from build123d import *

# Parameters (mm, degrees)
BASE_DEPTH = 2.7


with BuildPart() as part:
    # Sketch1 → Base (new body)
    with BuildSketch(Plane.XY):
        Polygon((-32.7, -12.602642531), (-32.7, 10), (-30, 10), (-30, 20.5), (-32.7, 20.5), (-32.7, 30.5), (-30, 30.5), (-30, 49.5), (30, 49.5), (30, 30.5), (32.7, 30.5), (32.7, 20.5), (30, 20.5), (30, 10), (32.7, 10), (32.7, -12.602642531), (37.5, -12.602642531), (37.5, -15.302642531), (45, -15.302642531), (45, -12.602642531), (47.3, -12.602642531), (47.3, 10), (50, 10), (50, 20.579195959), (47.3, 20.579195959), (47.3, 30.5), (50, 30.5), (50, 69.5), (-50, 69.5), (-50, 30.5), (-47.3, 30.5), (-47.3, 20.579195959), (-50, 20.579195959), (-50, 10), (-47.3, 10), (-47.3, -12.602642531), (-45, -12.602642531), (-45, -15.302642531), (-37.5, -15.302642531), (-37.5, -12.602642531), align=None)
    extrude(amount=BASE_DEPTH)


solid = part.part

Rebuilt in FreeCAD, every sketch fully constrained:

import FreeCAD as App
import Part
import Sketcher
from FreeCAD import Vector

doc = App.newDocument("Part")
params = doc.addObject("Spreadsheet::Sheet", "Params")
for row, (alias, value) in enumerate([
    ("sketch1_width", "60 mm"),
    ("sketch1_width2", "100 mm"),
    ("sketch1_height", "10 mm"),
    ("sketch1_height2", "19 mm"),
    ("sketch1_height3", "39 mm"),
    ("pad1_length", "2.7 mm"),
], start=1):
    params.set(f"A{row}", alias)
    params.set(f"B{row}", "=" + value)
    params.setAlias(f"B{row}", alias)

body = doc.addObject("PartDesign::Body", "Body")

sketch1 = body.newObject("Sketcher::SketchObject", "Sketch")
sketch1.AttachmentSupport = (doc.getObject("XY_Plane"), [""])
sketch1.MapMode = "FlatFace"
sketch1.addGeometry([
    Part.LineSegment(Vector(-32.7, -12.6, 0), Vector(-32.7, 10, 0)),
    Part.LineSegment(Vector(-32.7, 10, 0), Vector(-30, 10, 0)),
    Part.LineSegment(Vector(-30, 10, 0), Vector(-30, 20.5, 0)),
    Part.LineSegment(Vector(-30, 20.5, 0), Vector(-32.7, 20.5, 0)),
    Part.LineSegment(Vector(-32.7, 20.5, 0), Vector(-32.7, 30.5, 0)),
    Part.LineSegment(Vector(-32.7, 30.5, 0), Vector(-30, 30.5, 0)),
    Part.LineSegment(Vector(-30, 30.5, 0), Vector(-30, 49.5, 0)),
    Part.LineSegment(Vector(-30, 49.5, 0), Vector(30, 49.5, 0)),
    Part.LineSegment(Vector(30, 49.5, 0), Vector(30, 30.5, 0)),
    Part.LineSegment(Vector(30, 30.5, 0), Vector(32.7, 30.5, 0)),
    Part.LineSegment(Vector(32.7, 30.5, 0), Vector(32.7, 20.5, 0)),
    Part.LineSegment(Vector(32.7, 20.5, 0), Vector(30, 20.5, 0)),
    Part.LineSegment(Vector(30, 20.5, 0), Vector(30, 10, 0)),
    Part.LineSegment(Vector(30, 10, 0), Vector(32.7, 10, 0)),
    Part.LineSegment(Vector(32.7, 10, 0), Vector(32.7, -12.6, 0)),
    Part.LineSegment(Vector(32.7, -12.6, 0), Vector(37.5, -12.6, 0)),
    Part.LineSegment(Vector(37.5, -12.6, 0), Vector(37.5, -15.3, 0)),
    Part.LineSegment(Vector(37.5, -15.3, 0), Vector(45, -15.3, 0)),
    Part.LineSegment(Vector(45, -15.3, 0), Vector(45, -12.6, 0)),
    Part.LineSegment(Vector(45, -12.6, 0), Vector(47.3, -12.6, 0)),
    Part.LineSegment(Vector(47.3, -12.6, 0), Vector(47.3, 10, 0)),
    Part.LineSegment(Vector(47.3, 10, 0), Vector(50, 10, 0)),
    Part.LineSegment(Vector(50, 10, 0), Vector(50, 20.6, 0)),
    Part.LineSegment(Vector(50, 20.6, 0), Vector(47.3, 20.6, 0)),
    Part.LineSegment(Vector(47.3, 20.6, 0), Vector(47.3, 30.5, 0)),
    Part.LineSegment(Vector(47.3, 30.5, 0), Vector(50, 30.5, 0)),
    Part.LineSegment(Vector(50, 30.5, 0), Vector(50, 69.5, 0)),
    Part.LineSegment(Vector(50, 69.5, 0), Vector(-50, 69.5, 0)),
    Part.LineSegment(Vector(-50, 69.5, 0), Vector(-50, 30.5, 0)),
    Part.LineSegment(Vector(-50, 30.5, 0), Vector(-47.3, 30.5, 0)),
    Part.LineSegment(Vector(-47.3, 30.5, 0), Vector(-47.3, 20.6, 0)),
    Part.LineSegment(Vector(-47.3, 20.6, 0), Vector(-50, 20.6, 0)),
    Part.LineSegment(Vector(-50, 20.6, 0), Vector(-50, 10, 0)),
    Part.LineSegment(Vector(-50, 10, 0), Vector(-47.3, 10, 0)),
    Part.LineSegment(Vector(-47.3, 10, 0), Vector(-47.3, -12.6, 0)),
    Part.LineSegment(Vector(-47.3, -12.6, 0), Vector(-45, -12.6, 0)),
    Part.LineSegment(Vector(-45, -12.6, 0), Vector(-45, -15.3, 0)),
    Part.LineSegment(Vector(-45, -15.3, 0), Vector(-37.5, -15.3, 0)),
    Part.LineSegment(Vector(-37.5, -15.3, 0), Vector(-37.5, -12.6, 0)),
    Part.LineSegment(Vector(-37.5, -12.6, 0), Vector(-32.7, -12.6, 0)),
], False)
sketch1.addConstraint([
    Sketcher.Constraint("Coincident", 0, 2, 1, 1),
    Sketcher.Constraint("Coincident", 1, 2, 2, 1),
    Sketcher.Constraint("Coincident", 2, 2, 3, 1),
    Sketcher.Constraint("Coincident", 3, 2, 4, 1),
    Sketcher.Constraint("Coincident", 4, 2, 5, 1),
    Sketcher.Constraint("Coincident", 5, 2, 6, 1),
    Sketcher.Constraint("Coincident", 6, 2, 7, 1),
    Sketcher.Constraint("Coincident", 7, 2, 8, 1),
    Sketcher.Constraint("Coincident", 8, 2, 9, 1),
    Sketcher.Constraint("Coincident", 9, 2, 10, 1),
    Sketcher.Constraint("Coincident", 10, 2, 11, 1),
    Sketcher.Constraint("Coincident", 11, 2, 12, 1),
    Sketcher.Constraint("Coincident", 12, 2, 13, 1),
    Sketcher.Constraint("Coincident", 13, 2, 14, 1),
    Sketcher.Constraint("Coincident", 14, 2, 15, 1),
    Sketcher.Constraint("Coincident", 15, 2, 16, 1),
    Sketcher.Constraint("Coincident", 16, 2, 17, 1),
    Sketcher.Constraint("Coincident", 17, 2, 18, 1),
    Sketcher.Constraint("Coincident", 18, 2, 19, 1),
    Sketcher.Constraint("Coincident", 19, 2, 20, 1),
    Sketcher.Constraint("Coincident", 20, 2, 21, 1),
    Sketcher.Constraint("Coincident", 21, 2, 22, 1),
    Sketcher.Constraint("Coincident", 22, 2, 23, 1),
    Sketcher.Constraint("Coincident", 23, 2, 24, 1),
    Sketcher.Constraint("Coincident", 24, 2, 25, 1),
    Sketcher.Constraint("Coincident", 25, 2, 26, 1),
    Sketcher.Constraint("Coincident", 26, 2, 27, 1),
    Sketcher.Constraint("Coincident", 27, 2, 28, 1),
    Sketcher.Constraint("Coincident", 28, 2, 29, 1),
    Sketcher.Constraint("Coincident", 29, 2, 30, 1),
    Sketcher.Constraint("Coincident", 30, 2, 31, 1),
    Sketcher.Constraint("Coincident", 31, 2, 32, 1),
    Sketcher.Constraint("Coincident", 32, 2, 33, 1),
    Sketcher.Constraint("Coincident", 33, 2, 34, 1),
    Sketcher.Constraint("Coincident", 34, 2, 35, 1),
    Sketcher.Constraint("Coincident", 35, 2, 36, 1),
    Sketcher.Constraint("Coincident", 36, 2, 37, 1),
    Sketcher.Constraint("Coincident", 37, 2, 38, 1),
    Sketcher.Constraint("Coincident", 38, 2, 39, 1),
    Sketcher.Constraint("Coincident", 39, 2, 0, 1),
    Sketcher.Constraint("Vertical", 0),
    Sketcher.Constraint("Horizontal", 1),
    Sketcher.Constraint("Vertical", 2),
    Sketcher.Constraint("Horizontal", 3),
    Sketcher.Constraint("Vertical", 4),
    Sketcher.Constraint("Horizontal", 5),
    Sketcher.Constraint("Vertical", 6),
    Sketcher.Constraint("Horizontal", 7),
    Sketcher.Constraint("Vertical", 8),
    Sketcher.Constraint("Horizontal", 9),
    Sketcher.Constraint("Vertical", 10),
    Sketcher.Constraint("Horizontal", 11),
    Sketcher.Constraint("Vertical", 12),
    Sketcher.Constraint("Horizontal", 13),
    Sketcher.Constraint("Vertical", 14),
    Sketcher.Constraint("Horizontal", 15),
    Sketcher.Constraint("Vertical", 16),
    Sketcher.Constraint("Horizontal", 17),
    Sketcher.Constraint("Vertical", 18),
    Sketcher.Constraint("Horizontal", 19),
    Sketcher.Constraint("Vertical", 20),
    Sketcher.Constraint("Horizontal", 21),
    Sketcher.Constraint("Vertical", 22),
    Sketcher.Constraint("Horizontal", 23),
    Sketcher.Constraint("Vertical", 24),
    Sketcher.Constraint("Horizontal", 25),
    Sketcher.Constraint("Vertical", 26),
    Sketcher.Constraint("Horizontal", 27),
    Sketcher.Constraint("Vertical", 28),
    Sketcher.Constraint("Horizontal", 29),
    Sketcher.Constraint("Vertical", 30),
    Sketcher.Constraint("Horizontal", 31),
    Sketcher.Constraint("Vertical", 32),
    Sketcher.Constraint("Horizontal", 33),
    Sketcher.Constraint("Vertical", 34),
    Sketcher.Constraint("Horizontal", 35),
    Sketcher.Constraint("Vertical", 36),
    Sketcher.Constraint("Horizontal", 37),
    Sketcher.Constraint("Vertical", 38),
    Sketcher.Constraint("Horizontal", 39),
    Sketcher.Constraint("Symmetric", 5, 2, 8, 2, -2),
    Sketcher.Constraint("Symmetric", 3, 2, 10, 2, -2),
    Sketcher.Constraint("Symmetric", 1, 2, 12, 2, -2),
    Sketcher.Constraint("Symmetric", 25, 2, 28, 2, -2),
    Sketcher.Constraint("Symmetric", 23, 2, 30, 2, -2),
    Sketcher.Constraint("Symmetric", 21, 2, 32, 2, -2),
    Sketcher.Constraint("Symmetric", 19, 2, 34, 2, -2),
    Sketcher.Constraint("Symmetric", 17, 2, 36, 2, -2),
    Sketcher.Constraint("Symmetric", 15, 2, 38, 2, -2),
    Sketcher.Constraint("Horizontal", 15, 2, 18, 2),
    Sketcher.Constraint("Horizontal", 13, 2, 20, 2),
    Sketcher.Constraint("Horizontal", 9, 2, 24, 2),
    Sketcher.Constraint("Vertical", 0, 2, 3, 2),
    Sketcher.Constraint("Vertical", 2, 2, 5, 2),
    Sketcher.Constraint("Vertical", 10, 2, 13, 2),
    Sketcher.Constraint("Vertical", 20, 2, 23, 2),
    Sketcher.Constraint("Vertical", 22, 2, 25, 2),
    Sketcher.Constraint("Equal", 13, 21),
    Sketcher.Constraint("Equal", 33, 16),
    Sketcher.Constraint("DistanceX", 7, 1, 7, 2, 60.0),
    Sketcher.Constraint("DistanceX", 27, 2, 27, 1, 100.0),
    Sketcher.Constraint("DistanceY", 4, 1, 4, 2, 10.0),
    Sketcher.Constraint("DistanceY", 6, 1, 6, 2, 19.0),
    Sketcher.Constraint("DistanceY", 26, 1, 26, 2, 39.0),
    Sketcher.Constraint("DistanceX", 1, 1, 1, 2, 2.7),
    Sketcher.Constraint("DistanceX", 15, 1, 15, 2, 4.8),
    Sketcher.Constraint("DistanceX", 17, 1, 17, 2, 7.5),
    Sketcher.Constraint("DistanceY", 2, 1, 2, 2, 10.5),
    Sketcher.Constraint("DistanceY", -1, 1, 0, 2, 10.0),
    Sketcher.Constraint("DistanceY", 0, 1, 0, 2, 22.602643),
    Sketcher.Constraint("DistanceY", 22, 1, 22, 2, 10.579196),
])
sketch1.setExpression("Constraints[99]", "Params.sketch1_width")
sketch1.setExpression("Constraints[100]", "Params.sketch1_width2")
sketch1.setExpression("Constraints[101]", "Params.sketch1_height")
sketch1.setExpression("Constraints[102]", "Params.sketch1_height2")
sketch1.setExpression("Constraints[103]", "Params.sketch1_height3")
pad1 = body.newObject("PartDesign::Pad", "Pad")
pad1.Profile = sketch1
pad1.setExpression("Length", "Params.pad1_length")

doc.recompute()
